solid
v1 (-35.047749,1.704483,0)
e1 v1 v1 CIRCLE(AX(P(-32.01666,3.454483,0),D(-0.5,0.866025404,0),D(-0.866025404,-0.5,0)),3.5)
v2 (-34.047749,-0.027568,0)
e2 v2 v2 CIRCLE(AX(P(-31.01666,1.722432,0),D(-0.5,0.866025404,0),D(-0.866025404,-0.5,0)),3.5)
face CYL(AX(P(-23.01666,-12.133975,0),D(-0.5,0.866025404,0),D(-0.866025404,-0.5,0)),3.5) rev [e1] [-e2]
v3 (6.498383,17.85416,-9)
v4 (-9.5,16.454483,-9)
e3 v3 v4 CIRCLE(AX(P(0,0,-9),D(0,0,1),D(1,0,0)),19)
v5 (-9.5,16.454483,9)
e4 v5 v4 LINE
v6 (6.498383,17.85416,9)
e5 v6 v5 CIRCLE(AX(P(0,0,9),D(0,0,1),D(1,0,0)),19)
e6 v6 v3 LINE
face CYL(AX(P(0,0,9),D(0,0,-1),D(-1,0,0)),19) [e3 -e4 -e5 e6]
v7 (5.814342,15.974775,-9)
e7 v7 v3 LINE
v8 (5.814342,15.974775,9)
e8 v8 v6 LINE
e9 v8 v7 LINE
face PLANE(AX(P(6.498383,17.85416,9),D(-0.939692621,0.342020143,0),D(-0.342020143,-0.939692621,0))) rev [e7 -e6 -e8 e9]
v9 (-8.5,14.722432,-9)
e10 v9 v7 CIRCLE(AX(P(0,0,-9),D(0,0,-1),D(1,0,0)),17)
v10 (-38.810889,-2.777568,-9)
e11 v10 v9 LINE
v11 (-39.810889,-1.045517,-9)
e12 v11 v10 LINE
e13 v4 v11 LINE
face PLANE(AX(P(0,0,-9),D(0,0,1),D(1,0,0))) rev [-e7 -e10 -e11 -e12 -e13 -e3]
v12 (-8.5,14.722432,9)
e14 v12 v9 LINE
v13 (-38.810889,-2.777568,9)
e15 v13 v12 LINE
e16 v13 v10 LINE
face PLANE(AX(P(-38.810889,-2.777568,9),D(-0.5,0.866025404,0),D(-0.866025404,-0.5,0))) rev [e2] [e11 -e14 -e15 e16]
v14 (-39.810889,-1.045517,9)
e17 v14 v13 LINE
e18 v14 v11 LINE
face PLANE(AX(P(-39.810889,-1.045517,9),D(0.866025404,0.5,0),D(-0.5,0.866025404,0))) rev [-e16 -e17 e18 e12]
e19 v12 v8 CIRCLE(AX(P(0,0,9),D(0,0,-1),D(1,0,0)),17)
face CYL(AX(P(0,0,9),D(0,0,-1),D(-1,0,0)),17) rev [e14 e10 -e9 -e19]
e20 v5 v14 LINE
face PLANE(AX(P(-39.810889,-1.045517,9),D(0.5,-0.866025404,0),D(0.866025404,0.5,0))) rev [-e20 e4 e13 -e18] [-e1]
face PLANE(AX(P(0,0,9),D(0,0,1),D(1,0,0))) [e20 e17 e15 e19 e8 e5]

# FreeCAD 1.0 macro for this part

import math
import FreeCAD as App
import Part
import Sketcher
from FreeCAD import Vector
Q = App.Units.Quantity

doc = App.newDocument("Part")
body = doc.addObject("PartDesign::Body", "Body")

# Sketch on XY plane
sketch1 = doc.addObject("Sketcher::SketchObject", "Sketch")
body.addObject(sketch1)
sketch1.AttachmentSupport = (doc.XY_Plane, [""])
sketch1.MapMode = "FlatFace"
sketch1.addGeometry(Part.LineSegment(Vector(-38.8, -2.8, 0), Vector(-8.5, 14.7, 0)), False)
sketch1.addGeometry(Part.ArcOfCircle(Part.Circle(Vector(0, 0, 0), Vector(0, 0, 1), 17), math.radians(70), math.radians(120)), False)
sketch1.addGeometry(Part.LineSegment(Vector(5.8, 16, 0), Vector(6.5, 17.9, 0)), False)
sketch1.addGeometry(Part.ArcOfCircle(Part.Circle(Vector(0, 0, 0), Vector(0, 0, 1), 19), math.radians(70), math.radians(120)), False)
sketch1.addGeometry(Part.LineSegment(Vector(-9.5, 16.5, 0), Vector(-39.8, -1, 0)), False)
sketch1.addGeometry(Part.LineSegment(Vector(-39.8, -1, 0), Vector(-38.8, -2.8, 0)), False)
sketch1.addConstraint(Sketcher.Constraint("Tangent", 0, 2, 1, 2))
sketch1.addConstraint(Sketcher.Constraint("Coincident", 1, 1, 2, 1))
sketch1.addConstraint(Sketcher.Constraint("Coincident", 2, 2, 3, 1))
sketch1.addConstraint(Sketcher.Constraint("Tangent", 3, 2, 4, 1))
sketch1.addConstraint(Sketcher.Constraint("Coincident", 4, 2, 5, 1))
sketch1.addConstraint(Sketcher.Constraint("Coincident", 5, 2, 0, 1))
sketch1.addConstraint(Sketcher.Constraint("Coincident", 1, 3, -1, 1))
sketch1.addConstraint(Sketcher.Constraint("Coincident", 3, 3, -1, 1))
sketch1.addConstraint(Sketcher.Constraint("Parallel", 0, 4))
sketch1.addConstraint(Sketcher.Constraint("Perpendicular", 4, 5))
sketch1.addConstraint(Sketcher.Constraint("Radius", 1, Q("17 mm")))
sketch1.addConstraint(Sketcher.Constraint("Radius", 3, Q("19 mm")))
sketch1.addConstraint(Sketcher.Constraint("Angle", 0, Q("30 deg")))
sketch1.addConstraint(Sketcher.Constraint("Angle", 2, Q("70 deg")))
sketch1.addConstraint(Sketcher.Constraint("Distance", 0, Q("35 mm")))
sketch1.addConstraint(Sketcher.Constraint("DistanceY", -1, 1, 2, 2, Q("17.85416 mm")))
pad1 = doc.addObject("PartDesign::Pad", "Pad")
body.addObject(pad1)
pad1.Profile = sketch1
pad1.Length = 18
pad1.Midplane = True

# Sketch on an angled plane
sketch2 = doc.addObject("Sketcher::SketchObject", "Sketch001")
body.addObject(sketch2)
sketch2.Placement = App.Placement(Vector(-9.5, 16.454483, 0), App.Rotation(Vector(0.866025404, 0.5, 0), Vector(0, 0, -1), Vector(-0.5, 0.866025404, 0), "ZXY"))
sketch2.addGeometry(Part.Circle(Vector(-26, 0, 0), Vector(0, 0, 1), 3.5), False)
sketch2.addConstraint(Sketcher.Constraint("PointOnObject", 0, 3, -1))
sketch2.addConstraint(Sketcher.Constraint("Diameter", 0, Q("7 mm")))
sketch2.addConstraint(Sketcher.Constraint("DistanceX", 0, 3, -1, 1, Q("26 mm")))
pocket1 = doc.addObject("PartDesign::Pocket", "Pocket")
body.addObject(pocket1)
pocket1.Profile = sketch2
pocket1.Length = 18

doc.recompute()
